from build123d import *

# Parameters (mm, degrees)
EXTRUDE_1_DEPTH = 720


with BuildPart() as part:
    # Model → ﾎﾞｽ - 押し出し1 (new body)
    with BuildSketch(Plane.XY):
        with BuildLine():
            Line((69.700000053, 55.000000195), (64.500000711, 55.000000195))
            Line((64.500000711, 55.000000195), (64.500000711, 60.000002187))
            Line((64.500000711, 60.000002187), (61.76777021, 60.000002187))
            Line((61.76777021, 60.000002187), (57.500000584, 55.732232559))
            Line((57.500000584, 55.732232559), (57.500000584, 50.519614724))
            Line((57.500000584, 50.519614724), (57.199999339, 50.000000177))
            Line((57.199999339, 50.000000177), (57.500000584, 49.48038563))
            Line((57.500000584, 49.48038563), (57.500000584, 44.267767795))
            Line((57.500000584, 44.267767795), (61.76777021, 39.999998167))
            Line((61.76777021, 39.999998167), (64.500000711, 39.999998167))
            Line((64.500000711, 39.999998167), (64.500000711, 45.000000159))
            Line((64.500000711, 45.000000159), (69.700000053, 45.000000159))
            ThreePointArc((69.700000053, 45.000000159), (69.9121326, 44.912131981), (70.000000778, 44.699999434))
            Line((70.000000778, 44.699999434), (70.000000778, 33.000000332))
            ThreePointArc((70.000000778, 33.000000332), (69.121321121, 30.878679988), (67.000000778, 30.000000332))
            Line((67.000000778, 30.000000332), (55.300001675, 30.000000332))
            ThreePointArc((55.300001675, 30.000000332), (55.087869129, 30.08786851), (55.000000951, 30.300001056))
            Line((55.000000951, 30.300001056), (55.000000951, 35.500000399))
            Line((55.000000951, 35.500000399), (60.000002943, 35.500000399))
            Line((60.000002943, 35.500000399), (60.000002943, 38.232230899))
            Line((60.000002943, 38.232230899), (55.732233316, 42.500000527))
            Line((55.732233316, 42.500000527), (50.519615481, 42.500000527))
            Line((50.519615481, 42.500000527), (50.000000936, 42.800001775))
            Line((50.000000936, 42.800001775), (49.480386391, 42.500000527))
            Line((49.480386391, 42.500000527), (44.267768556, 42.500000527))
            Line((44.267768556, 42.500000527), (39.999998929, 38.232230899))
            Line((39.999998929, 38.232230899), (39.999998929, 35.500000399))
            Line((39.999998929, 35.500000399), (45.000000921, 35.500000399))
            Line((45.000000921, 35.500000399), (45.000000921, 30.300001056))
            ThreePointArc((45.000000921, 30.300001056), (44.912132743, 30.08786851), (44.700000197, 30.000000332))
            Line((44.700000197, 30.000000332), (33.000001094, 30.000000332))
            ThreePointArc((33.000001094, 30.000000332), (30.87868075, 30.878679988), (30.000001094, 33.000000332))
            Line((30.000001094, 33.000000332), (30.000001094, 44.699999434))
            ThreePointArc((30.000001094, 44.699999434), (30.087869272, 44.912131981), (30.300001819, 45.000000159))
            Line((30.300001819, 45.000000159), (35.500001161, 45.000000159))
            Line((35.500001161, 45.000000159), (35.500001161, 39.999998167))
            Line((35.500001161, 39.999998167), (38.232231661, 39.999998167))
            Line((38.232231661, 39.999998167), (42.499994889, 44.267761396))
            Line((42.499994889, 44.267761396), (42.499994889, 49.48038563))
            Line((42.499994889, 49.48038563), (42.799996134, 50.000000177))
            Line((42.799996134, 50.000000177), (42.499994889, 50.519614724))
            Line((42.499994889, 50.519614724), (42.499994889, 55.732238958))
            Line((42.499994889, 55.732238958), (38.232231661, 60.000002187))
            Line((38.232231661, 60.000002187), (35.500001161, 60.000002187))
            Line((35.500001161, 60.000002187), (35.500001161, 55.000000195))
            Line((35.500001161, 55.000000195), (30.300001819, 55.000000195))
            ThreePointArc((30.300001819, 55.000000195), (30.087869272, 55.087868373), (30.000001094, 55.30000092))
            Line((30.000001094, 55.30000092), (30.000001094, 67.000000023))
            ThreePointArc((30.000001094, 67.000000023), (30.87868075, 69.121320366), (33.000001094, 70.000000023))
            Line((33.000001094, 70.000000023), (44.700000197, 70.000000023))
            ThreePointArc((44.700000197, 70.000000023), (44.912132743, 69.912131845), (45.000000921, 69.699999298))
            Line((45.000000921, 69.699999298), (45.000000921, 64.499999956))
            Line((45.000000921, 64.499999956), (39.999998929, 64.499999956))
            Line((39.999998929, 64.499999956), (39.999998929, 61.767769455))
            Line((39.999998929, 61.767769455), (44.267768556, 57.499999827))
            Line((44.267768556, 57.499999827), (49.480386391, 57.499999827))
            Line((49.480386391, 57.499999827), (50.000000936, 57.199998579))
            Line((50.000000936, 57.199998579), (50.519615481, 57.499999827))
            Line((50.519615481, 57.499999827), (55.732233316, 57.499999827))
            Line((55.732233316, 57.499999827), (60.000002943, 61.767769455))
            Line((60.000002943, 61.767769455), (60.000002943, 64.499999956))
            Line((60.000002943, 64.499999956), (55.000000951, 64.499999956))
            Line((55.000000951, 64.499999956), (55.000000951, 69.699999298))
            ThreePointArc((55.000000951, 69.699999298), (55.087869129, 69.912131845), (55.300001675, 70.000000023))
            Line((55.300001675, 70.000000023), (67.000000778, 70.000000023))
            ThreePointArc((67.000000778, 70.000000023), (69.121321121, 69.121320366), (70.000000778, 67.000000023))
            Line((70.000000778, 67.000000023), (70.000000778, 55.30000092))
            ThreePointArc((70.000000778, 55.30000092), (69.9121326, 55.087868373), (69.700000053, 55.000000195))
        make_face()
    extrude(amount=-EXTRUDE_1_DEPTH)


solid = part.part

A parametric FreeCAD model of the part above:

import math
import FreeCAD as App
import Part
import Sketcher
from FreeCAD import Vector
Q = App.Units.Quantity

doc = App.newDocument("Part")
body = doc.addObject("PartDesign::Body", "Body")

# Sketch on XY plane
sketch1 = body.newObject("Sketcher::SketchObject", "Sketch")
sketch1.AttachmentSupport = (doc.getObject("XY_Plane"), [""])
sketch1.MapMode = "FlatFace"
sketch1.addGeometry([
    Part.LineSegment(Vector(64.5, 55, 0), Vector(69.7, 55, 0)),  # 0
    Part.ArcOfCircle(Part.Circle(Vector(69.7, 55.3, 0), Vector(0, 0, 1), 0.3), math.radians(-90), math.radians(0)),  # 1
    Part.LineSegment(Vector(70, 55.3, 0), Vector(70, 67, 0)),  # 2
    Part.ArcOfCircle(Part.Circle(Vector(67, 67, 0), Vector(0, 0, 1), 3), math.radians(0), math.radians(90)),  # 3
    Part.LineSegment(Vector(67, 70, 0), Vector(55.3, 70, 0)),  # 4
    Part.ArcOfCircle(Part.Circle(Vector(55.3, 69.7, 0), Vector(0, 0, 1), 0.3), math.radians(90), math.radians(180)),  # 5
    Part.LineSegment(Vector(55, 69.7, 0), Vector(55, 64.5, 0)),  # 6
    Part.LineSegment(Vector(55, 64.5, 0), Vector(60, 64.5, 0)),  # 7
    Part.LineSegment(Vector(60, 64.5, 0), Vector(60, 61.77, 0)),  # 8
    Part.LineSegment(Vector(60, 61.77, 0), Vector(55.73, 57.5, 0)),  # 9
    Part.LineSegment(Vector(55.73, 57.5, 0), Vector(50.52, 57.5, 0)),  # 10
    Part.LineSegment(Vector(50.52, 57.5, 0), Vector(50, 57.2, 0)),  # 11
    Part.LineSegment(Vector(50, 57.2, 0), Vector(49.48, 57.5, 0)),  # 12
    Part.LineSegment(Vector(49.48, 57.5, 0), Vector(44.27, 57.5, 0)),  # 13
    Part.LineSegment(Vector(44.27, 57.5, 0), Vector(40, 61.77, 0)),  # 14
    Part.LineSegment(Vector(40, 61.77, 0), Vector(40, 64.5, 0)),  # 15
    Part.LineSegment(Vector(40, 64.5, 0), Vector(45, 64.5, 0)),  # 16
    Part.LineSegment(Vector(45, 64.5, 0), Vector(45, 69.7, 0)),  # 17
    Part.ArcOfCircle(Part.Circle(Vector(44.7, 69.7, 0), Vector(0, 0, 1), 0.3), math.radians(0), math.radians(90)),  # 18
    Part.LineSegment(Vector(44.7, 70, 0), Vector(33, 70, 0)),  # 19
    Part.ArcOfCircle(Part.Circle(Vector(33, 67, 0), Vector(0, 0, 1), 3), math.radians(90), math.radians(180)),  # 20
    Part.LineSegment(Vector(30, 67, 0), Vector(30, 55.3, 0)),  # 21
    Part.ArcOfCircle(Part.Circle(Vector(30.3, 55.3, 0), Vector(0, 0, 1), 0.3), math.radians(180), math.radians(270)),  # 22
    Part.LineSegment(Vector(30.3, 55, 0), Vector(35.5, 55, 0)),  # 23
    Part.LineSegment(Vector(35.5, 55, 0), Vector(35.5, 60, 0)),  # 24
    Part.LineSegment(Vector(35.5, 60, 0), Vector(38.23, 60, 0)),  # 25
    Part.LineSegment(Vector(38.23, 60, 0), Vector(42.5, 55.73, 0)),  # 26
    Part.LineSegment(Vector(42.5, 55.73, 0), Vector(42.5, 50.52, 0)),  # 27
    Part.LineSegment(Vector(42.5, 50.52, 0), Vector(42.8, 50, 0)),  # 28
    Part.LineSegment(Vector(42.8, 50, 0), Vector(42.5, 49.48, 0)),  # 29
    Part.LineSegment(Vector(42.5, 49.48, 0), Vector(42.5, 44.27, 0)),  # 30
    Part.LineSegment(Vector(42.5, 44.27, 0), Vector(38.23, 40, 0)),  # 31
    Part.LineSegment(Vector(38.23, 40, 0), Vector(35.5, 40, 0)),  # 32
    Part.LineSegment(Vector(35.5, 40, 0), Vector(35.5, 45, 0)),  # 33
    Part.LineSegment(Vector(35.5, 45, 0), Vector(30.3, 45, 0)),  # 34
    Part.ArcOfCircle(Part.Circle(Vector(30.3, 44.7, 0), Vector(0, 0, 1), 0.3), math.radians(90), math.radians(180)),  # 35
    Part.LineSegment(Vector(30, 44.7, 0), Vector(30, 33, 0)),  # 36
    Part.ArcOfCircle(Part.Circle(Vector(33, 33, 0), Vector(0, 0, 1), 3), math.radians(180), math.radians(270)),  # 37
    Part.LineSegment(Vector(33, 30, 0), Vector(44.7, 30, 0)),  # 38
    Part.ArcOfCircle(Part.Circle(Vector(44.7, 30.3, 0), Vector(0, 0, 1), 0.3), math.radians(-90), math.radians(0)),  # 39
    Part.LineSegment(Vector(45, 30.3, 0), Vector(45, 35.5, 0)),  # 40
    Part.LineSegment(Vector(45, 35.5, 0), Vector(40, 35.5, 0)),  # 41
    Part.LineSegment(Vector(40, 35.5, 0), Vector(40, 38.23, 0)),  # 42
    Part.LineSegment(Vector(40, 38.23, 0), Vector(44.27, 42.5, 0)),  # 43
    Part.LineSegment(Vector(44.27, 42.5, 0), Vector(49.48, 42.5, 0)),  # 44
    Part.LineSegment(Vector(49.48, 42.5, 0), Vector(50, 42.8, 0)),  # 45
    Part.LineSegment(Vector(50, 42.8, 0), Vector(50.52, 42.5, 0)),  # 46
    Part.LineSegment(Vector(50.52, 42.5, 0), Vector(55.73, 42.5, 0)),  # 47
    Part.LineSegment(Vector(55.73, 42.5, 0), Vector(60, 38.23, 0)),  # 48
    Part.LineSegment(Vector(60, 38.23, 0), Vector(60, 35.5, 0)),  # 49
    Part.LineSegment(Vector(60, 35.5, 0), Vector(55, 35.5, 0)),  # 50
    Part.LineSegment(Vector(55, 35.5, 0), Vector(55, 30.3, 0)),  # 51
    Part.ArcOfCircle(Part.Circle(Vector(55.3, 30.3, 0), Vector(0, 0, 1), 0.3), math.radians(-180), math.radians(-90)),  # 52
    Part.LineSegment(Vector(55.3, 30, 0), Vector(67, 30, 0)),  # 53
    Part.ArcOfCircle(Part.Circle(Vector(67, 33, 0), Vector(0, 0, 1), 3), math.radians(-90), math.radians(0)),  # 54
    Part.LineSegment(Vector(70, 33, 0), Vector(70, 44.7, 0)),  # 55
    Part.ArcOfCircle(Part.Circle(Vector(69.7, 44.7, 0), Vector(0, 0, 1), 0.3), math.radians(0), math.radians(90)),  # 56
    Part.LineSegment(Vector(69.7, 45, 0), Vector(64.5, 45, 0)),  # 57
    Part.LineSegment(Vector(64.5, 45, 0), Vector(64.5, 40, 0)),  # 58
    Part.LineSegment(Vector(64.5, 40, 0), Vector(61.77, 40, 0)),  # 59
    Part.LineSegment(Vector(61.77, 40, 0), Vector(57.5, 44.27, 0)),  # 60
    Part.LineSegment(Vector(57.5, 44.27, 0), Vector(57.5, 49.48, 0)),  # 61
    Part.LineSegment(Vector(57.5, 49.48, 0), Vector(57.2, 50, 0)),  # 62
    Part.LineSegment(Vector(57.2, 50, 0), Vector(57.5, 50.52, 0)),  # 63
    Part.LineSegment(Vector(57.5, 50.52, 0), Vector(57.5, 55.73, 0)),  # 64
    Part.LineSegment(Vector(57.5, 55.73, 0), Vector(61.77, 60, 0)),  # 65
    Part.LineSegment(Vector(61.77, 60, 0), Vector(64.5, 60, 0)),  # 66
    Part.LineSegment(Vector(64.5, 60, 0), Vector(64.5, 55, 0)),  # 67
], False)
sketch1.addConstraint([
    Sketcher.Constraint("Tangent", 0, 2, 1, 1),
    Sketcher.Constraint("Tangent", 1, 2, 2, 1),
    Sketcher.Constraint("Tangent", 2, 2, 3, 1),
    Sketcher.Constraint("Tangent", 3, 2, 4, 1),
    Sketcher.Constraint("Tangent", 4, 2, 5, 1),
    Sketcher.Constraint("Tangent", 5, 2, 6, 1),
    Sketcher.Constraint("Coincident", 6, 2, 7, 1),
    Sketcher.Constraint("Coincident", 7, 2, 8, 1),
    Sketcher.Constraint("Coincident", 8, 2, 9, 1),
    Sketcher.Constraint("Coincident", 9, 2, 10, 1),
    Sketcher.Constraint("Coincident", 10, 2, 11, 1),
    Sketcher.Constraint("Coincident", 11, 2, 12, 1),
    Sketcher.Constraint("Coincident", 12, 2, 13, 1),
    Sketcher.Constraint("Coincident", 13, 2, 14, 1),
    Sketcher.Constraint("Coincident", 14, 2, 15, 1),
    Sketcher.Constraint("Coincident", 15, 2, 16, 1),
    Sketcher.Constraint("Coincident", 16, 2, 17, 1),
    Sketcher.Constraint("Tangent", 17, 2, 18, 1),
    Sketcher.Constraint("Tangent", 18, 2, 19, 1),
    Sketcher.Constraint("Tangent", 19, 2, 20, 1),
    Sketcher.Constraint("Tangent", 20, 2, 21, 1),
    Sketcher.Constraint("Tangent", 21, 2, 22, 1),
    Sketcher.Constraint("Tangent", 22, 2, 23, 1),
    Sketcher.Constraint("Coincident", 23, 2, 24, 1),
    Sketcher.Constraint("Coincident", 24, 2, 25, 1),
    Sketcher.Constraint("Coincident", 25, 2, 26, 1),
    Sketcher.Constraint("Coincident", 26, 2, 27, 1),
    Sketcher.Constraint("Coincident", 27, 2, 28, 1),
    Sketcher.Constraint("Coincident", 28, 2, 29, 1),
    Sketcher.Constraint("Coincident", 29, 2, 30, 1),
    Sketcher.Constraint("Coincident", 30, 2, 31, 1),
    Sketcher.Constraint("Coincident", 31, 2, 32, 1),
    Sketcher.Constraint("Coincident", 32, 2, 33, 1),
    Sketcher.Constraint("Coincident", 33, 2, 34, 1),
    Sketcher.Constraint("Tangent", 34, 2, 35, 1),
    Sketcher.Constraint("Tangent", 35, 2, 36, 1),
    Sketcher.Constraint("Tangent", 36, 2, 37, 1),
    Sketcher.Constraint("Tangent", 37, 2, 38, 1),
    Sketcher.Constraint("Tangent", 38, 2, 39, 1),
    Sketcher.Constraint("Tangent", 39, 2, 40, 1),
    Sketcher.Constraint("Coincident", 40, 2, 41, 1),
    Sketcher.Constraint("Coincident", 41, 2, 42, 1),
    Sketcher.Constraint("Coincident", 42, 2, 43, 1),
    Sketcher.Constraint("Coincident", 43, 2, 44, 1),
    Sketcher.Constraint("Coincident", 44, 2, 45, 1),
    Sketcher.Constraint("Coincident", 45, 2, 46, 1),
    Sketcher.Constraint("Coincident", 46, 2, 47, 1),
    Sketcher.Constraint("Coincident", 47, 2, 48, 1),
    Sketcher.Constraint("Coincident", 48, 2, 49, 1),
    Sketcher.Constraint("Coincident", 49, 2, 50, 1),
    Sketcher.Constraint("Coincident", 50, 2, 51, 1),
    Sketcher.Constraint("Tangent", 51, 2, 52, 1),
    Sketcher.Constraint("Tangent", 52, 2, 53, 1),
    Sketcher.Constraint("Tangent", 53, 2, 54, 1),
    Sketcher.Constraint("Tangent", 54, 2, 55, 1),
    Sketcher.Constraint("Tangent", 55, 2, 56, 1),
    Sketcher.Constraint("Tangent", 56, 2, 57, 1),
    Sketcher.Constraint("Coincident", 57, 2, 58, 1),
    Sketcher.Constraint("Coincident", 58, 2, 59, 1),
    Sketcher.Constraint("Coincident", 59, 2, 60, 1),
    Sketcher.Constraint("Coincident", 60, 2, 61, 1),
    Sketcher.Constraint("Coincident", 61, 2, 62, 1),
    Sketcher.Constraint("Coincident", 62, 2, 63, 1),
    Sketcher.Constraint("Coincident", 63, 2, 64, 1),
    Sketcher.Constraint("Coincident", 64, 2, 65, 1),
    Sketcher.Constraint("Coincident", 65, 2, 66, 1),
    Sketcher.Constraint("Coincident", 66, 2, 67, 1),
    Sketcher.Constraint("Coincident", 67, 2, 0, 1),
    Sketcher.Constraint("Horizontal", 0),
    Sketcher.Constraint("Vertical", 2),
    Sketcher.Constraint("Horizontal", 4),
    Sketcher.Constraint("Vertical", 6),
    Sketcher.Constraint("Horizontal", 7),
    Sketcher.Constraint("Vertical", 8),
    Sketcher.Constraint("Horizontal", 10),
    Sketcher.Constraint("Horizontal", 13),
    Sketcher.Constraint("Vertical", 15),
    Sketcher.Constraint("Horizontal", 16),
    Sketcher.Constraint("Vertical", 17),
    Sketcher.Constraint("Horizontal", 19),
    Sketcher.Constraint("Vertical", 21),
    Sketcher.Constraint("Horizontal", 23),
    Sketcher.Constraint("Vertical", 24),
    Sketcher.Constraint("Horizontal", 25),
    Sketcher.Constraint("Vertical", 27),
    Sketcher.Constraint("Vertical", 30),
    Sketcher.Constraint("Horizontal", 32),
    Sketcher.Constraint("Vertical", 33),
    Sketcher.Constraint("Horizontal", 34),
    Sketcher.Constraint("Vertical", 36),
    Sketcher.Constraint("Horizontal", 38),
    Sketcher.Constraint("Vertical", 40),
    Sketcher.Constraint("Horizontal", 41),
    Sketcher.Constraint("Vertical", 42),
    Sketcher.Constraint("Horizontal", 44),
    Sketcher.Constraint("Horizontal", 47),
    Sketcher.Constraint("Vertical", 49),
    Sketcher.Constraint("Horizontal", 50),
    Sketcher.Constraint("Vertical", 51),
    Sketcher.Constraint("Horizontal", 53),
    Sketcher.Constraint("Vertical", 55),
    Sketcher.Constraint("Horizontal", 57),
    Sketcher.Constraint("Vertical", 58),
    Sketcher.Constraint("Horizontal", 59),
    Sketcher.Constraint("Vertical", 61),
    Sketcher.Constraint("Vertical", 64),
    Sketcher.Constraint("Horizontal", 66),
    Sketcher.Constraint("Vertical", 67),
    Sketcher.Constraint("Equal", 1, 5),
    Sketcher.Constraint("Equal", 5, 18),
    Sketcher.Constraint("Equal", 3, 20),
    Sketcher.Constraint("Equal", 18, 22),
    Sketcher.Constraint("Equal", 22, 35),
    Sketcher.Constraint("Equal", 20, 37),
    Sketcher.Constraint("Equal", 35, 39),
    Sketcher.Constraint("Equal", 39, 52),
    Sketcher.Constraint("Equal", 37, 54),
    Sketcher.Constraint("Equal", 52, 56),
    Sketcher.Constraint("Perpendicular", 9, 14),
    Sketcher.Constraint("Parallel", 14, 26),
    Sketcher.Constraint("Perpendicular", 11, 28),
    Sketcher.Constraint("Perpendicular", 12, 29),
    Sketcher.Constraint("Perpendicular", 26, 31),
    Sketcher.Constraint("Parallel", 31, 43),
    Sketcher.Constraint("Perpendicular", 28, 45),
    Sketcher.Constraint("Perpendicular", 29, 46),
    Sketcher.Constraint("Perpendicular", 43, 48),
    Sketcher.Constraint("Parallel", 48, 60),
    Sketcher.Constraint("Perpendicular", 45, 62),
    Sketcher.Constraint("Perpendicular", 46, 63),
    Sketcher.Constraint("Perpendicular", 60, 65),
    Sketcher.Constraint("Horizontal", 5, 3, 18, 3),
    Sketcher.Constraint("Horizontal", 1, 3, 22, 3),
    Sketcher.Constraint("Horizontal", 39, 3, 52, 3),
    Sketcher.Constraint("Horizontal", 35, 3, 56, 3),
    Sketcher.Constraint("Horizontal", 10, 2, 12, 2),
    Sketcher.Constraint("Horizontal", 8, 2, 14, 2),
    Sketcher.Constraint("Horizontal", 7, 2, 15, 2),
    Sketcher.Constraint("Horizontal", 44, 2, 46, 2),
    Sketcher.Constraint("Horizontal", 42, 2, 48, 2),
    Sketcher.Constraint("Horizontal", 41, 2, 49, 2),
    Sketcher.Constraint("Horizontal", 32, 2, 58, 2),
    Sketcher.Constraint("Horizontal", 29, 2, 61, 2),
    Sketcher.Constraint("Horizontal", 28, 2, 62, 2),
    Sketcher.Constraint("Horizontal", 27, 2, 63, 2),
    Sketcher.Constraint("Horizontal", 25, 2, 65, 2),
    Sketcher.Constraint("Vertical", 22, 3, 35, 3),
    Sketcher.Constraint("Vertical", 18, 3, 39, 3),
    Sketcher.Constraint("Vertical", 5, 3, 52, 3),
    Sketcher.Constraint("Vertical", 3, 3, 54, 3),
    Sketcher.Constraint("Vertical", 27, 2, 29, 2),
    Sketcher.Constraint("Vertical", 25, 2, 31, 2),
    Sketcher.Constraint("Vertical", 24, 2, 32, 2),
    Sketcher.Constraint("Vertical", 15, 2, 41, 2),
    Sketcher.Constraint("Vertical", 13, 2, 43, 2),
    Sketcher.Constraint("Vertical", 12, 2, 44, 2),
    Sketcher.Constraint("Vertical", 11, 2, 45, 2),
    Sketcher.Constraint("Vertical", 10, 2, 46, 2),
    Sketcher.Constraint("Vertical", 9, 2, 47, 2),
    Sketcher.Constraint("Vertical", 8, 2, 48, 2),
    Sketcher.Constraint("Vertical", 59, 2, 65, 2),
    Sketcher.Constraint("Vertical", 58, 2, 66, 2),
    Sketcher.Constraint("Equal", 10, 13),
    Sketcher.Constraint("Equal", 7, 16),
    Sketcher.Constraint("Equal", 4, 19),
    Sketcher.Constraint("Equal", 0, 23),
    Sketcher.Constraint("Equal", 32, 59),
    Sketcher.Constraint("Equal", 53, 2),
    Sketcher.Constraint("Equal", 57, 6),
    Sketcher.Constraint("Equal", 66, 8),
    Sketcher.Constraint("Equal", 50, 24),
    Sketcher.Constraint("Equal", 27, 30),
    Sketcher.Constraint("Equal", 24, 33),
    Sketcher.Constraint("Equal", 21, 36),
    Sketcher.Constraint("Equal", 17, 40),
    Sketcher.Constraint("Equal", 15, 42),
    Sketcher.Constraint("Equal", 47, 61),
    Sketcher.Constraint("Equal", 12, 28),
    Sketcher.Constraint("Equal", 48, 60),
    Sketcher.Constraint("Radius", 3, Q("3 mm")),
    Sketcher.Constraint("Radius", 1, Q("0.300001 mm")),
    Sketcher.Constraint("DistanceX", 7, 1, 7, 2, Q("5.000002 mm")),
    Sketcher.Constraint("DistanceX", 0, 1, 0, 2, Q("5.199999 mm")),
    Sketcher.Constraint("DistanceX", 4, 2, 4, 1, Q("11.699999 mm")),
    Sketcher.Constraint("DistanceX", -1, 1, 3, 3, Q("67.000001 mm")),
    Sketcher.Constraint("DistanceY", -1, 1, 3, 3, Q("67 mm")),
    Sketcher.Constraint("DistanceX", -1, 1, 20, 3, Q("33.000001 mm")),
    Sketcher.Constraint("Distance", 11, Q("0.6 mm")),
    Sketcher.Constraint("DistanceY", -1, 1, 9, 2, Q("57.5 mm")),
    Sketcher.Constraint("DistanceY", -1, 1, 11, 2, Q("57.199999 mm")),
    Sketcher.Constraint("DistanceX", 25, 1, 25, 2, Q("2.732231 mm")),
    Sketcher.Constraint("Distance", 26, Q("6.035529 mm")),
])
pad1 = body.newObject("PartDesign::Pad", "Pad")
pad1.Profile = sketch1
pad1.Length = 720
pad1.Reversed = True

doc.recompute()
